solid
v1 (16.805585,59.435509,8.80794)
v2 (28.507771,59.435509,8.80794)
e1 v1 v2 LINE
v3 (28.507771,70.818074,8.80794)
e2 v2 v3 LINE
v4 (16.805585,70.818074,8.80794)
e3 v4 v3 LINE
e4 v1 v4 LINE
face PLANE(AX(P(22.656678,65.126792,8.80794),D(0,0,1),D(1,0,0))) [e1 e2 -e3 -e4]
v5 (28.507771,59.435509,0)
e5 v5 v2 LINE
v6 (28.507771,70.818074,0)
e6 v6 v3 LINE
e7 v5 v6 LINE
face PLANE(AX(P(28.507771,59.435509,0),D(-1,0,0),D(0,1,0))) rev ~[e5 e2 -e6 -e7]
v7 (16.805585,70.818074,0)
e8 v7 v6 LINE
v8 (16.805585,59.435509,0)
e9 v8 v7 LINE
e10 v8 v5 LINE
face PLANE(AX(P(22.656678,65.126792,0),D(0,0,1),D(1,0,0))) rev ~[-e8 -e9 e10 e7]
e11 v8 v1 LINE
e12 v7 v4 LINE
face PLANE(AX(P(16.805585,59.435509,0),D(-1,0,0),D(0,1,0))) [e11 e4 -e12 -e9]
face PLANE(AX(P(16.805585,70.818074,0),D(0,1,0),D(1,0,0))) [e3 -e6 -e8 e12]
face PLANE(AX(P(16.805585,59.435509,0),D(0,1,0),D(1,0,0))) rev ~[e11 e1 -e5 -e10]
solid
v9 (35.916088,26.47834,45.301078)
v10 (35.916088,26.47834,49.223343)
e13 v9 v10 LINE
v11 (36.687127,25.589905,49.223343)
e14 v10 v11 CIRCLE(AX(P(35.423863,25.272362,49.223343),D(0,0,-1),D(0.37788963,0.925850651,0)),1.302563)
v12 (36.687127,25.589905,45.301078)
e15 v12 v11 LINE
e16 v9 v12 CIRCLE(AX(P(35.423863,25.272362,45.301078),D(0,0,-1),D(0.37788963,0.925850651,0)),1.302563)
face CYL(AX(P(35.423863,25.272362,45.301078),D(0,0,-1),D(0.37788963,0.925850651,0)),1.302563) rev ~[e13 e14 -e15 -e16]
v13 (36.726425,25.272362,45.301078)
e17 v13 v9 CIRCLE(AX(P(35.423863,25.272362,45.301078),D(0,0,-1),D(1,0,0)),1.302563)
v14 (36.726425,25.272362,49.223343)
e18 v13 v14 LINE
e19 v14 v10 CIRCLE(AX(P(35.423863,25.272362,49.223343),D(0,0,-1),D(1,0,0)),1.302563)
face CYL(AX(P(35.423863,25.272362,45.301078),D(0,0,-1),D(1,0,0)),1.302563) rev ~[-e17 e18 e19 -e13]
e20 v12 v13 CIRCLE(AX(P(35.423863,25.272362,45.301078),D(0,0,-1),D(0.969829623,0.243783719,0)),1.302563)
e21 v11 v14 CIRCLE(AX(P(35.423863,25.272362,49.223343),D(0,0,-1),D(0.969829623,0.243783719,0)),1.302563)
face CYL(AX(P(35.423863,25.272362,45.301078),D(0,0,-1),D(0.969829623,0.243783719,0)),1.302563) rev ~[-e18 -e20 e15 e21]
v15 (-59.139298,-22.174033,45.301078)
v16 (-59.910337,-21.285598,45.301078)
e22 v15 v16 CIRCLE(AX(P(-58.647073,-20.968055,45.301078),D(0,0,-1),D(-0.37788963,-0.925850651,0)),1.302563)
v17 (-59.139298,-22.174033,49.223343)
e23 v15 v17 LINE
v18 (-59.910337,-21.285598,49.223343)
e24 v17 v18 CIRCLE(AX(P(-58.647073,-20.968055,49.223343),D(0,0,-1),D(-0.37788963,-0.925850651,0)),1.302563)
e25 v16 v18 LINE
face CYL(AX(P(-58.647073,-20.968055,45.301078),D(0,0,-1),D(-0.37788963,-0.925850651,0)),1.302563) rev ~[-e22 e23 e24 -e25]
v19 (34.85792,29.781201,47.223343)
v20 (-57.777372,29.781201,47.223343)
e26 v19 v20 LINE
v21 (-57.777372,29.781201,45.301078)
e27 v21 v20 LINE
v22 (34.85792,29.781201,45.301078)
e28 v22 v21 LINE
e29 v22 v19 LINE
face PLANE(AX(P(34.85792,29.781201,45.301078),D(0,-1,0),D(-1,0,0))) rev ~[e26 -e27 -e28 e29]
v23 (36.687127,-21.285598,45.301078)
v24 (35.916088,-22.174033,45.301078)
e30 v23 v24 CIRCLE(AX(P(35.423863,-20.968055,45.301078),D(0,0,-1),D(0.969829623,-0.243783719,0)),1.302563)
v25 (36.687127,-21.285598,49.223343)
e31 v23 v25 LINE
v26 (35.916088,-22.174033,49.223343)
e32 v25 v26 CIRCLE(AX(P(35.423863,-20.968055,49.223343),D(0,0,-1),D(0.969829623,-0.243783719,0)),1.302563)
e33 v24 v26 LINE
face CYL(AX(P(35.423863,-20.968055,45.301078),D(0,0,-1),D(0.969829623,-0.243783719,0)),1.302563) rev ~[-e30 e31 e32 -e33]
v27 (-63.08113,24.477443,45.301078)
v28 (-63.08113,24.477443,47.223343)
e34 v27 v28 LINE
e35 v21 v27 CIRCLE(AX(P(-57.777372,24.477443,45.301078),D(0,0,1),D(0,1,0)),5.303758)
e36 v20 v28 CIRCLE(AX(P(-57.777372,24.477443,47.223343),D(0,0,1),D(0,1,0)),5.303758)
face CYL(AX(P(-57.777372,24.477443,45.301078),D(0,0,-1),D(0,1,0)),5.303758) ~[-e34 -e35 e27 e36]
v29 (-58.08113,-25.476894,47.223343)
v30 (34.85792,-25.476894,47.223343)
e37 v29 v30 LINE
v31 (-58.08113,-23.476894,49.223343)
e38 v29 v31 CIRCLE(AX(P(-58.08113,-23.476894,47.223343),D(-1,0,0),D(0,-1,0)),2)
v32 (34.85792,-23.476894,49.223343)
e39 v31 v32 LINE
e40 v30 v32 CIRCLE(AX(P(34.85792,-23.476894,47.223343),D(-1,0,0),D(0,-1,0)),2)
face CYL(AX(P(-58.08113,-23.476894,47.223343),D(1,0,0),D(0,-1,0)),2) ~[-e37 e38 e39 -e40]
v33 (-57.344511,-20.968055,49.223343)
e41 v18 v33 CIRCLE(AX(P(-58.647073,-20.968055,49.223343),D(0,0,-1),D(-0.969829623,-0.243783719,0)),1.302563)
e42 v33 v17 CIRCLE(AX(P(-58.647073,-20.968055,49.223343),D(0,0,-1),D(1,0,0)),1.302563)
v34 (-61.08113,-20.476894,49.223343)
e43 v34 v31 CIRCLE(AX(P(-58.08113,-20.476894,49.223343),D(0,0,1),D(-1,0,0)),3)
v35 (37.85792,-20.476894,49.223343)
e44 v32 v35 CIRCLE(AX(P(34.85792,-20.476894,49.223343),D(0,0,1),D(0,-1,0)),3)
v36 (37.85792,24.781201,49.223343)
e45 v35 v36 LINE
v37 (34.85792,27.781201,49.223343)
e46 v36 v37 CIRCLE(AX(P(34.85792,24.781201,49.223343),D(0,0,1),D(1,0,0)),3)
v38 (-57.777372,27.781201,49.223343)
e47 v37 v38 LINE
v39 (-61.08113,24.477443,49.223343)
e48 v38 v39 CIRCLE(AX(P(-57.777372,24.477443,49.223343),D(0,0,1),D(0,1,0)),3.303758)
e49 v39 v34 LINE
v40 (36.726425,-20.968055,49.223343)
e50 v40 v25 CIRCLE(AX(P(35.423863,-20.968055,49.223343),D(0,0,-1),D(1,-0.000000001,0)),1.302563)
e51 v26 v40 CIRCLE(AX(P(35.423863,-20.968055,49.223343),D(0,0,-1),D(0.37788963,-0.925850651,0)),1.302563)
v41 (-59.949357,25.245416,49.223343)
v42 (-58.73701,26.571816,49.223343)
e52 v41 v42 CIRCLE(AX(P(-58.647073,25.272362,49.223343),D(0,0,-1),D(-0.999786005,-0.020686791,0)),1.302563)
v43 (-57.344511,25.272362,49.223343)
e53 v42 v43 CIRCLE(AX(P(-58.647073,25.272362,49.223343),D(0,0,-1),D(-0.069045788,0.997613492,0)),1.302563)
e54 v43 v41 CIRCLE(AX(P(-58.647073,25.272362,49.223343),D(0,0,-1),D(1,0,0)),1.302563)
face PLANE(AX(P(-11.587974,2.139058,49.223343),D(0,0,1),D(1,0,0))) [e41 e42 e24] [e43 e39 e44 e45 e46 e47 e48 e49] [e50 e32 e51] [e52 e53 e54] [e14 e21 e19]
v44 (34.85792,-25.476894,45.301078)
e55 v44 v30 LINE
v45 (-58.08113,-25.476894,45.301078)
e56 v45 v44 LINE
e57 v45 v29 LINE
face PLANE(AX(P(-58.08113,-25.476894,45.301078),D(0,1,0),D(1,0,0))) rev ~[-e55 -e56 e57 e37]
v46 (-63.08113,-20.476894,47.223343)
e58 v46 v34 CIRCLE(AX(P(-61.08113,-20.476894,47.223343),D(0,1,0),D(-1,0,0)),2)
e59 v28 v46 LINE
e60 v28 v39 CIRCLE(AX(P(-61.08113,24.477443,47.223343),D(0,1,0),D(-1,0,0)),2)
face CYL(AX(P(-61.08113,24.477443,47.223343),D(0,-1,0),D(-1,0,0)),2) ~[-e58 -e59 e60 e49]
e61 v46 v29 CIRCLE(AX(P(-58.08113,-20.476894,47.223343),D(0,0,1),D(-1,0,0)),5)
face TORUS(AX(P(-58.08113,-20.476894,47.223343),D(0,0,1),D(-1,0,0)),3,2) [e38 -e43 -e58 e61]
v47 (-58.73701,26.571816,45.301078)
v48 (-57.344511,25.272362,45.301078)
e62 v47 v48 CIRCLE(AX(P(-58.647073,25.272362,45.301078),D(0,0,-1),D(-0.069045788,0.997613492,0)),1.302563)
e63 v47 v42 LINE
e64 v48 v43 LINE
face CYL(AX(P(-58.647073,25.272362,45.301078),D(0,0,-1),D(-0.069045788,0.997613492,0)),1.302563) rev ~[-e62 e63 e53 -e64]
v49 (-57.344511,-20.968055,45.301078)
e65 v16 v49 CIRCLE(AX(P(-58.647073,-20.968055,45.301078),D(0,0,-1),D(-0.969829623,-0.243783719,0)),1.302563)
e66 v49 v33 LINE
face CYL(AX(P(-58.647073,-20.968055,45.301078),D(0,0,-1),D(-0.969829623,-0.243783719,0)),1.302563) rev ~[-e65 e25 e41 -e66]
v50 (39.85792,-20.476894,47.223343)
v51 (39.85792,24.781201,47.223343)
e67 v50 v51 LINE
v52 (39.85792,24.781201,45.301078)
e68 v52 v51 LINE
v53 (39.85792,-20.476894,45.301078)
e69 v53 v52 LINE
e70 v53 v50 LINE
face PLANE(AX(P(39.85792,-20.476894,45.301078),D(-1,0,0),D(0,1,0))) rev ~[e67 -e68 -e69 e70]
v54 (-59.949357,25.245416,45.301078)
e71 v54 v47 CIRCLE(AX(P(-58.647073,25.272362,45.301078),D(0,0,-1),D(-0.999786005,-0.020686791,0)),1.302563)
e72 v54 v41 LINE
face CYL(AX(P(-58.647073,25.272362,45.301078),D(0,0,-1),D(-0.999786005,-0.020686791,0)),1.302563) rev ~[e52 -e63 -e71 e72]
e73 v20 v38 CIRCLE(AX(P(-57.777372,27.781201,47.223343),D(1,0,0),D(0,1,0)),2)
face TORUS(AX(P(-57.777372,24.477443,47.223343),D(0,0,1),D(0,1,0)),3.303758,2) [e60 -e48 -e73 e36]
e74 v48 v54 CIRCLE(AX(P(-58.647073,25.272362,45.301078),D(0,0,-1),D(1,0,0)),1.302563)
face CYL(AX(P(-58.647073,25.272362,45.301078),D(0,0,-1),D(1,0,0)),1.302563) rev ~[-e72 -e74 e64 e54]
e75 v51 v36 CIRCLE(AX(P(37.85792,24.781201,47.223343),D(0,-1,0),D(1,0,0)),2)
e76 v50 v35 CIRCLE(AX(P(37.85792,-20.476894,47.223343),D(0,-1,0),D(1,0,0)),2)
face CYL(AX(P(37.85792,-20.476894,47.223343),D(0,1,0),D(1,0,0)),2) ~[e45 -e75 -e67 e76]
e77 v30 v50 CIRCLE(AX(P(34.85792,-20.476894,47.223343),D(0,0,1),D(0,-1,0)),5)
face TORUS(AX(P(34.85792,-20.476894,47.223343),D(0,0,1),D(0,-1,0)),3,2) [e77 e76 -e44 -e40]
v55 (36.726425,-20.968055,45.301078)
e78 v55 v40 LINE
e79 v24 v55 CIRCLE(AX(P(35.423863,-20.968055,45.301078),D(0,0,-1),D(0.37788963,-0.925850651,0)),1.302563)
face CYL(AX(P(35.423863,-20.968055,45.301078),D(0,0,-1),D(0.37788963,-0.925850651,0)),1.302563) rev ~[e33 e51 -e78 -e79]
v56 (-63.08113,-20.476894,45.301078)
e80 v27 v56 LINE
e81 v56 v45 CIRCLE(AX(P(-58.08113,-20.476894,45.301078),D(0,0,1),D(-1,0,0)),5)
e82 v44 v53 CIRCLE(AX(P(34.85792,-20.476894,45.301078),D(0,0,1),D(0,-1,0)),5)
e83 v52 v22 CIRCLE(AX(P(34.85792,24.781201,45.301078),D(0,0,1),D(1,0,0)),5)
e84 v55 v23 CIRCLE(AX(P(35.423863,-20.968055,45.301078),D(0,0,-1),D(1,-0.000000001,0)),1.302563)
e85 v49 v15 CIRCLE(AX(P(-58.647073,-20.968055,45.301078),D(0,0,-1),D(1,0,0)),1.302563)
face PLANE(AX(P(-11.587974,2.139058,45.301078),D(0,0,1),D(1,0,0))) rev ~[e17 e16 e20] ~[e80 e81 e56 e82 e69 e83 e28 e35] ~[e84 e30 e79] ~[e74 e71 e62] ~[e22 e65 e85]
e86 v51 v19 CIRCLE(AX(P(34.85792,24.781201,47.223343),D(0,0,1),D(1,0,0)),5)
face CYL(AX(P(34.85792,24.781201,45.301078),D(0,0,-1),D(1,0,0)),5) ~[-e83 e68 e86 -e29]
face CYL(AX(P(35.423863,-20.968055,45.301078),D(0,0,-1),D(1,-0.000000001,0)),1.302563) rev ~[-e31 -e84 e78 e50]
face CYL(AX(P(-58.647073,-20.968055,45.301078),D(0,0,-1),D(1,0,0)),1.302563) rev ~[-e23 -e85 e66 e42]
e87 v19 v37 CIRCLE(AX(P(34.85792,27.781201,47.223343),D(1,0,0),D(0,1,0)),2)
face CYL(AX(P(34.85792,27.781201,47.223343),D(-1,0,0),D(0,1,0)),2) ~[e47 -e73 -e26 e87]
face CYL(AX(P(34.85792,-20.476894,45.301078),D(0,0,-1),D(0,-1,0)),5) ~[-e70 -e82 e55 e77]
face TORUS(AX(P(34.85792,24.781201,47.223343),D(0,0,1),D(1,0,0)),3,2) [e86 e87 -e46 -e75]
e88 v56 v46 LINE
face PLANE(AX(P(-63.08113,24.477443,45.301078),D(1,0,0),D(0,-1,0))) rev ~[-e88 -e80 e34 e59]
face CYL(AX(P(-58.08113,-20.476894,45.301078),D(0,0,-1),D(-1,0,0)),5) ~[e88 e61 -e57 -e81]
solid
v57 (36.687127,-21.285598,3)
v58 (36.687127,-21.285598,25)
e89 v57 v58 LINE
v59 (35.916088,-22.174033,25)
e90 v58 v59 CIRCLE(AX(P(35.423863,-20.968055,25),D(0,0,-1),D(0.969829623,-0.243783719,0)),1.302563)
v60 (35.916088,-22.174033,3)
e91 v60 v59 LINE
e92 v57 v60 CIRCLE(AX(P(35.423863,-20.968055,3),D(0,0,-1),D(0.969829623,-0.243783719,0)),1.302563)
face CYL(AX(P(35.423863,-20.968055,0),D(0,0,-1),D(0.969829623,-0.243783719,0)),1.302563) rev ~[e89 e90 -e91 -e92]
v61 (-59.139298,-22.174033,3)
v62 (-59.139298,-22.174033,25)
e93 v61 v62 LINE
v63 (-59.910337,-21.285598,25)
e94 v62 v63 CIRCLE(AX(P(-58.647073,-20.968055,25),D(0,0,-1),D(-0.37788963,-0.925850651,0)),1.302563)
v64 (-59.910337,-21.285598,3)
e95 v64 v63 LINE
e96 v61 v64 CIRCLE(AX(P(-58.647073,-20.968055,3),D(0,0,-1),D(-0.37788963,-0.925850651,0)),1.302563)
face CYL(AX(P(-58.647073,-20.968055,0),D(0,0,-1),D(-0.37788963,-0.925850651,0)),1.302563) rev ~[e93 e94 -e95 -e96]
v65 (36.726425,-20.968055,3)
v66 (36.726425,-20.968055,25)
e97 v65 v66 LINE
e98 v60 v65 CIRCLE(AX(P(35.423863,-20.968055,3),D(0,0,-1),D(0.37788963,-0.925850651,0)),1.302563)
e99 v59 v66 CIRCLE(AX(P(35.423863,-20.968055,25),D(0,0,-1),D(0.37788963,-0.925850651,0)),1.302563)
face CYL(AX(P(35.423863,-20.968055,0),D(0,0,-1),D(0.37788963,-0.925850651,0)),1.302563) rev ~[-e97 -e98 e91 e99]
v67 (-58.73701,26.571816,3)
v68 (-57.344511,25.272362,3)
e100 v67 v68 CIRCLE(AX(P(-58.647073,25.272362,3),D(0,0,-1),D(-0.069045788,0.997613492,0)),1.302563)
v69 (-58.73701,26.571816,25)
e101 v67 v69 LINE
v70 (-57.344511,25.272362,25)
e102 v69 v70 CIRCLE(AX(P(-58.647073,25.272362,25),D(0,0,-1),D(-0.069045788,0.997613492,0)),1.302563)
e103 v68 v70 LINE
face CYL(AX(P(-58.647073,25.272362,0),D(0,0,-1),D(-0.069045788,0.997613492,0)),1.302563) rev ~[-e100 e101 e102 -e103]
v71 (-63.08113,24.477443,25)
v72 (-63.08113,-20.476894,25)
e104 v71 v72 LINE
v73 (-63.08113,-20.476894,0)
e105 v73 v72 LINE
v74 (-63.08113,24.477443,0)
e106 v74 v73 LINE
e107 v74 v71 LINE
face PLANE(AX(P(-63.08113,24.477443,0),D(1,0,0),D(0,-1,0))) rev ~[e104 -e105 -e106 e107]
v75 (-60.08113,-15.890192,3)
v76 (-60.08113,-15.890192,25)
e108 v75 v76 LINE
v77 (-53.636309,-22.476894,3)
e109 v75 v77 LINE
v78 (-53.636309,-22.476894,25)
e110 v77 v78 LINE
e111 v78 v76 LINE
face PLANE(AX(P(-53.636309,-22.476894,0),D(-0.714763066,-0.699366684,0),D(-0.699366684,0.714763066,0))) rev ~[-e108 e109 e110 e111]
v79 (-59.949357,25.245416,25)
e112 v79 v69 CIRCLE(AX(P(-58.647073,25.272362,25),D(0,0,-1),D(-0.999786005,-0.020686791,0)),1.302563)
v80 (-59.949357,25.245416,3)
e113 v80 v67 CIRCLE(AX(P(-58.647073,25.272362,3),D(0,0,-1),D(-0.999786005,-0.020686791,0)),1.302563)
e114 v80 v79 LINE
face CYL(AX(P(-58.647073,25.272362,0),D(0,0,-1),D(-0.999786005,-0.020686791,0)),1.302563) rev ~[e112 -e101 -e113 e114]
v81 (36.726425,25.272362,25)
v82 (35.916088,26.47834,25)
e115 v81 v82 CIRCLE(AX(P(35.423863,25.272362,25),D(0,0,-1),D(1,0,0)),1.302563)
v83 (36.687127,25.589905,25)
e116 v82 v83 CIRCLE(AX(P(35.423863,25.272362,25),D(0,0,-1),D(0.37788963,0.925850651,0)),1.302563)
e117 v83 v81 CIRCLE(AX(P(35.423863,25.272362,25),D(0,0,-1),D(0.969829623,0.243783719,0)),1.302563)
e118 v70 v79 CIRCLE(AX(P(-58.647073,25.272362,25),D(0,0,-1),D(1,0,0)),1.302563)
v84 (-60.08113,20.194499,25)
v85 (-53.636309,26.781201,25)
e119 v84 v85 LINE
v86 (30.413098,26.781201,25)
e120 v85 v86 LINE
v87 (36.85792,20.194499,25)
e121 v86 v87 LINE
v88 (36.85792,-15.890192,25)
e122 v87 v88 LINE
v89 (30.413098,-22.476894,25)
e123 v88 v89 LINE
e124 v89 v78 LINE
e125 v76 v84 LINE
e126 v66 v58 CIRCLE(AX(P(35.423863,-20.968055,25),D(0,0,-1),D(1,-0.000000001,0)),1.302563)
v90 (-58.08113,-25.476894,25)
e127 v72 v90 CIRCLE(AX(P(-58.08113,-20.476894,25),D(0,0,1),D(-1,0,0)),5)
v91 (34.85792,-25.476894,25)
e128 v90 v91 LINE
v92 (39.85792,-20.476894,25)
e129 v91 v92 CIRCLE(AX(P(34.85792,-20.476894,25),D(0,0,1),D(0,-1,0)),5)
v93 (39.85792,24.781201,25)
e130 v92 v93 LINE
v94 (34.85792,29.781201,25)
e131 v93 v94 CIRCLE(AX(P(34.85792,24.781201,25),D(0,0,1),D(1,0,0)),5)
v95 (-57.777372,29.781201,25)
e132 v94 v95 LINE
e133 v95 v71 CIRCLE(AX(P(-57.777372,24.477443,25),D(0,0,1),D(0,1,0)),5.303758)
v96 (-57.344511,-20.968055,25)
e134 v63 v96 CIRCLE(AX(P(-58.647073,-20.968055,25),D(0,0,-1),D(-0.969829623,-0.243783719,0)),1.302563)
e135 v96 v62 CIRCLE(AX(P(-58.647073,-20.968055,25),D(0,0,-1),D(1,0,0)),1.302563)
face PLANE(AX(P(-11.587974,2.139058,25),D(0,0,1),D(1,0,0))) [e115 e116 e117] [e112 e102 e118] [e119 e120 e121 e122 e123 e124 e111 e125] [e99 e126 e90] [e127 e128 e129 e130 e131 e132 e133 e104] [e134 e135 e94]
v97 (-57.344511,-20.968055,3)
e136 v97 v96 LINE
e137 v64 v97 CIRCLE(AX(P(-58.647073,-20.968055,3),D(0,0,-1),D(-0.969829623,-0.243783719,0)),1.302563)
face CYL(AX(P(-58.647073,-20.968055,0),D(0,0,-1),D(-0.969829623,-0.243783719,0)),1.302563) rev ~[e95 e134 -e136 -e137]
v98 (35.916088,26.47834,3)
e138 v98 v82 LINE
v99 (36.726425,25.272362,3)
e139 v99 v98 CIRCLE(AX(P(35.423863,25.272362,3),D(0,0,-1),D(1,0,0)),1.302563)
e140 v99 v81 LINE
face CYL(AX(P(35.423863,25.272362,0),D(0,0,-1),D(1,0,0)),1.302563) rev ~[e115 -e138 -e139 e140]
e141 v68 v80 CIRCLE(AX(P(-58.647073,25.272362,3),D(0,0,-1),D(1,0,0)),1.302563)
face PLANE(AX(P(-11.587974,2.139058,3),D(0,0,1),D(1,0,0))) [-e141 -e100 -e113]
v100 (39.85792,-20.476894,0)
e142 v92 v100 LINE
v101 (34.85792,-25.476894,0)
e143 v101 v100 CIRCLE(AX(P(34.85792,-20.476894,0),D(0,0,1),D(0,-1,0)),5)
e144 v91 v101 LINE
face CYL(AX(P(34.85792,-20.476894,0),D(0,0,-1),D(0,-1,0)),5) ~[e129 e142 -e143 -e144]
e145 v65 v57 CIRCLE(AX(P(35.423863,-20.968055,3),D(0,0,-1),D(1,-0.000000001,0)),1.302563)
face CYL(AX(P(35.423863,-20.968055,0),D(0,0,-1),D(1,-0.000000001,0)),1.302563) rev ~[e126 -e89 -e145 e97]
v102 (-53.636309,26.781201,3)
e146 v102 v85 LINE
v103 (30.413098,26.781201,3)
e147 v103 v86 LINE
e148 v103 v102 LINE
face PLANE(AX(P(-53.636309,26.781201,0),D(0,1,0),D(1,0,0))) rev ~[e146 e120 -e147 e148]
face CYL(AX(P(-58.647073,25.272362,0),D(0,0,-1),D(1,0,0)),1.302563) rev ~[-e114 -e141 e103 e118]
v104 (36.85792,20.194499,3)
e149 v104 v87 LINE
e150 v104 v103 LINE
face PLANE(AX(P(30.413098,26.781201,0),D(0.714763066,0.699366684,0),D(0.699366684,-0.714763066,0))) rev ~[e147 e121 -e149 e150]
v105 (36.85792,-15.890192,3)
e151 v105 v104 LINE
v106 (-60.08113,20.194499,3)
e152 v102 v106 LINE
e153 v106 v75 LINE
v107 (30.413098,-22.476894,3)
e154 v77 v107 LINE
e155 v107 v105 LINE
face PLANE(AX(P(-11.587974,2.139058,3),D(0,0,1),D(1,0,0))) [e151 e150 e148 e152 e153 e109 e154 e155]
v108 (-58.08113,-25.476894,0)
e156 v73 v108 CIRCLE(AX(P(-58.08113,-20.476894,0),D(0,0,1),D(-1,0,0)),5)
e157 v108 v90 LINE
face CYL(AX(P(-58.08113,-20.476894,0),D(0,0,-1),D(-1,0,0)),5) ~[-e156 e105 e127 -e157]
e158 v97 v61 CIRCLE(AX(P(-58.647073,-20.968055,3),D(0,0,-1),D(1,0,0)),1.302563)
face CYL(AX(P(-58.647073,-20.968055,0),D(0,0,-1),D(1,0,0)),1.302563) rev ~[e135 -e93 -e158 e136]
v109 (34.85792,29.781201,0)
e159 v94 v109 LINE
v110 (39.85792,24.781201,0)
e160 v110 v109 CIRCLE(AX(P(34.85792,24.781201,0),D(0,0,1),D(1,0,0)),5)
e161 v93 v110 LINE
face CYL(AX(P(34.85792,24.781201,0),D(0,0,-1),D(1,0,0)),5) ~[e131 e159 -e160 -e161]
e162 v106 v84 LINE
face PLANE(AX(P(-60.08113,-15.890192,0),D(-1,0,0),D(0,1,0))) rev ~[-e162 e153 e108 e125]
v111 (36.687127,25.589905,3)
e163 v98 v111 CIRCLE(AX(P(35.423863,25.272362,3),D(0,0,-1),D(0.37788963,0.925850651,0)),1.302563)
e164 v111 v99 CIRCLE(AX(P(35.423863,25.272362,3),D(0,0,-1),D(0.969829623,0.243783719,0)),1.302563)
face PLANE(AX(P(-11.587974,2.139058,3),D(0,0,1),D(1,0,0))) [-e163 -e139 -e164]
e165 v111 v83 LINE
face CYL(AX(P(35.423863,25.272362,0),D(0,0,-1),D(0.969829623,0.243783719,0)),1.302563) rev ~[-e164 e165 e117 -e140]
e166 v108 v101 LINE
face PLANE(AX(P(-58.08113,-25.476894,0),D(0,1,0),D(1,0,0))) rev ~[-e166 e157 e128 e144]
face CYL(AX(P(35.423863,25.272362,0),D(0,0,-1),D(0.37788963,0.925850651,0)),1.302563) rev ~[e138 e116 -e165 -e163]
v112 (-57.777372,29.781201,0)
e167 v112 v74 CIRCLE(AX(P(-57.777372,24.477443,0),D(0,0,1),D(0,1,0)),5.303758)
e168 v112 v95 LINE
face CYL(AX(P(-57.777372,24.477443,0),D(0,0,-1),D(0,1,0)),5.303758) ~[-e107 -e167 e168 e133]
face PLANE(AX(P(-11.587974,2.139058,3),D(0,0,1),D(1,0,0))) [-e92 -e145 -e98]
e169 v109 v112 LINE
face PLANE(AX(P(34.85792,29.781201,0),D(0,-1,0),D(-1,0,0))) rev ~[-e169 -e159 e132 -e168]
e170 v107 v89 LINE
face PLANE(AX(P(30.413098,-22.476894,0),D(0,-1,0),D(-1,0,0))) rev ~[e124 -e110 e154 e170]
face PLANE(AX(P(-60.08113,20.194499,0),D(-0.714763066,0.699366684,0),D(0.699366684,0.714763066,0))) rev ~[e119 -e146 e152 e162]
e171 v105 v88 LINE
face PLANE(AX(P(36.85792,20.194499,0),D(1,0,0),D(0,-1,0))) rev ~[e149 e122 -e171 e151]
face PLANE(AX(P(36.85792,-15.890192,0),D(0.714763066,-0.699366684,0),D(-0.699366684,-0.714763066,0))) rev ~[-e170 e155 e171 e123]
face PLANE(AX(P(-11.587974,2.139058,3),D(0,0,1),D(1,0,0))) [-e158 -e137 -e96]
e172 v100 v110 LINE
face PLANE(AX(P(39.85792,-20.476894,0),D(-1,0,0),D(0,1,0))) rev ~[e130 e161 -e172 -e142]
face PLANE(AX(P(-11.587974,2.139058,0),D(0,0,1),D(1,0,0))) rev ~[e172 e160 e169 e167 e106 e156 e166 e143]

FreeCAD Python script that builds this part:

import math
import FreeCAD as App
import Part
import Sketcher

V = App.Vector
Q = App.Units.Quantity


def edges_at(feature, points):
    """Names of the edges that pass closest to the given points."""
    edges = feature.Shape.Edges
    near = lambda p: min(range(len(edges)), key=lambda i: edges[i].distToShape(Part.Vertex(*p))[0])
    return sorted({f"Edge{near(p) + 1}" for p in points})

doc = App.newDocument("Part")
body = doc.addObject("PartDesign::Body", "Body")

# Sketch on XY plane
sketch1 = body.newObject("Sketcher::SketchObject", "Sketch")
sketch1.AttachmentSupport = (doc.getObject("XY_Plane"), [""])
sketch1.MapMode = "FlatFace"
sketch1.addGeometry([
    Part.LineSegment(V(17, 71, 0), V(17, 59, 0)),
    Part.LineSegment(V(17, 59, 0), V(29, 59, 0)),
    Part.LineSegment(V(29, 59, 0), V(29, 71, 0)),
    Part.LineSegment(V(29, 71, 0), V(17, 71, 0)),
], False)
sketch1.addConstraint([
    Sketcher.Constraint("Coincident", 0, 2, 1, 1),
    Sketcher.Constraint("Coincident", 1, 2, 2, 1),
    Sketcher.Constraint("Coincident", 2, 2, 3, 1),
    Sketcher.Constraint("Coincident", 3, 2, 0, 1),
    Sketcher.Constraint("Vertical", 0),
    Sketcher.Constraint("Horizontal", 1),
    Sketcher.Constraint("Vertical", 2),
    Sketcher.Constraint("Horizontal", 3),
    Sketcher.Constraint("DistanceX", 1, 1, 1, 2, Q("11.702185 mm")),
    Sketcher.Constraint("DistanceY", 0, 2, 0, 1, Q("11.382565 mm")),
    Sketcher.Constraint("DistanceY", -1, 1, 0, 2, Q("59.435509 mm")),
    Sketcher.Constraint("DistanceX", -1, 1, 1, 2, Q("28.507771 mm")),
])
pad1 = body.newObject("PartDesign::Pad", "Pad")
pad1.Profile = sketch1
pad1.Length = 8.80794
body2 = doc.addObject("PartDesign::Body", "Body001")

# Sketch on XY plane
sketch2 = body2.newObject("Sketcher::SketchObject", "Sketch001")
sketch2.AttachmentSupport = (doc.getObject("XY_Plane001"), [""])
sketch2.MapMode = "FlatFace"
sketch2.addGeometry([
    Part.LineSegment(V(35, 30, 0), V(-58, 30, 0)),  # 0
    Part.ArcOfCircle(Part.Circle(V(-58, 24, 0), V(0, 0, 1), 5), math.radians(90), math.radians(180)),  # 1
    Part.LineSegment(V(-63, 24, 0), V(-63, -20, 0)),  # 2
    Part.ArcOfCircle(Part.Circle(V(-58, -20, 0), V(0, 0, 1), 5), math.radians(180), math.radians(270)),  # 3
    Part.LineSegment(V(-58, -25, 0), V(35, -25, 0)),  # 4
    Part.ArcOfCircle(Part.Circle(V(35, -20, 0), V(0, 0, 1), 5), math.radians(-90), math.radians(0)),  # 5
    Part.LineSegment(V(40, -20, 0), V(40, 25, 0)),  # 6
    Part.ArcOfCircle(Part.Circle(V(35, 25, 0), V(0, 0, 1), 5), math.radians(0), math.radians(90)),  # 7
], False)
sketch2.addConstraint([
    Sketcher.Constraint("Tangent", 0, 2, 1, 1),
    Sketcher.Constraint("Tangent", 1, 2, 2, 1),
    Sketcher.Constraint("Tangent", 2, 2, 3, 1),
    Sketcher.Constraint("Tangent", 3, 2, 4, 1),
    Sketcher.Constraint("Tangent", 4, 2, 5, 1),
    Sketcher.Constraint("Tangent", 5, 2, 6, 1),
    Sketcher.Constraint("Tangent", 6, 2, 7, 1),
    Sketcher.Constraint("Tangent", 7, 2, 0, 1),
    Sketcher.Constraint("Horizontal", 0),
    Sketcher.Constraint("Vertical", 2),
    Sketcher.Constraint("Horizontal", 4),
    Sketcher.Constraint("Vertical", 6),
    Sketcher.Constraint("Equal", 3, 5),
    Sketcher.Constraint("Equal", 5, 7),
    Sketcher.Constraint("Radius", 3, Q("5 mm")),
    Sketcher.Constraint("Radius", 1, Q("5.303758 mm")),
    Sketcher.Constraint("DistanceX", 0, 2, 0, 1, Q("92.635291 mm")),
    Sketcher.Constraint("DistanceY", -1, 1, 7, 3, Q("24.781201 mm")),
    Sketcher.Constraint("DistanceY", 2, 2, 2, 1, Q("44.954337 mm")),
    Sketcher.Constraint("DistanceX", 1, 3, -1, 1, Q("57.777372 mm")),
])
pad2 = body2.newObject("PartDesign::Pad", "Pad001")
pad2.Profile = sketch2
pad2.Length = 3

# Sketch on XY plane
sketch3 = body2.newObject("Sketcher::SketchObject", "Sketch002")
sketch3.AttachmentSupport = (doc.getObject("XY_Plane001"), [""])
sketch3.MapMode = "FlatFace"
sketch3.addGeometry([
    Part.LineSegment(V(34.86, 29.78, 0), V(-57.78, 29.78, 0)),  # 0
    Part.ArcOfCircle(Part.Circle(V(-57.78, 24.48, 0), V(0, 0, 1), 5.3), math.radians(90), math.radians(180)),  # 1
    Part.LineSegment(V(-63.08, 24.48, 0), V(-63.08, -20.48, 0)),  # 2
    Part.ArcOfCircle(Part.Circle(V(-58.08, -20.48, 0), V(0, 0, 1), 5), math.radians(180), math.radians(270)),  # 3
    Part.LineSegment(V(-58.08, -25.48, 0), V(34.86, -25.48, 0)),  # 4
    Part.ArcOfCircle(Part.Circle(V(34.86, -20.48, 0), V(0, 0, 1), 5), math.radians(-90), math.radians(0)),  # 5
    Part.LineSegment(V(39.86, -20.48, 0), V(39.86, 24.78, 0)),  # 6
    Part.ArcOfCircle(Part.Circle(V(34.86, 24.78, 0), V(0, 0, 1), 5), math.radians(0), math.radians(90)),  # 7
    Part.ArcOfCircle(Part.Circle(V(-58.65, 25.27, 0), V(0, 0, 1), 1.3), math.radians(94), math.radians(181)),  # 8
    Part.ArcOfCircle(Part.Circle(V(-58.65, 25.27, 0), V(0, 0, 1), 1.3), math.radians(0), math.radians(94)),  # 9
    Part.ArcOfCircle(Part.Circle(V(-58.65, 25.27, 0), V(0, 0, 1), 1.3), math.radians(-179), math.radians(0)),  # 10
    Part.LineSegment(V(-53.64, 26.78, 0), V(30.41, 26.78, 0)),  # 11
    Part.LineSegment(V(30.41, 26.78, 0), V(36.86, 20.19, 0)),  # 12
    Part.LineSegment(V(36.86, 20.19, 0), V(36.86, -15.89, 0)),  # 13
    Part.LineSegment(V(36.86, -15.89, 0), V(30.41, -22.48, 0)),  # 14
    Part.LineSegment(V(30.41, -22.48, 0), V(-53.64, -22.48, 0)),  # 15
    Part.LineSegment(V(-53.64, -22.48, 0), V(-60.08, -15.89, 0)),  # 16
    Part.LineSegment(V(-60.08, -15.89, 0), V(-60.08, 20.19, 0)),  # 17
    Part.LineSegment(V(-60.08, 20.19, 0), V(-53.64, 26.78, 0)),  # 18
    Part.ArcOfCircle(Part.Circle(V(-58.65, -20.97, 0), V(0, 0, 1), 1.3), math.radians(-166), math.radians(-112)),  # 19
    Part.ArcOfCircle(Part.Circle(V(-58.65, -20.97, 0), V(0, 0, 1), 1.3), math.radians(0), math.radians(194)),  # 20
    Part.ArcOfCircle(Part.Circle(V(-58.65, -20.97, 0), V(0, 0, 1), 1.3), math.radians(-112), math.radians(0)),  # 21
    Part.ArcOfCircle(Part.Circle(V(35.42, 25.27, 0), V(0, 0, 1), 1.3), math.radians(14), math.radians(68)),  # 22
    Part.ArcOfCircle(Part.Circle(V(35.42, 25.27, 0), V(0, 0, 1), 1.3), math.radians(0), math.radians(14.11)),  # 23
    Part.ArcOfCircle(Part.Circle(V(35.42, 25.27, 0), V(0, 0, 1), 1.3), math.radians(68), math.radians(360)),  # 24
    Part.ArcOfCircle(Part.Circle(V(35.42, -20.97, 0), V(0, 0, 1), 1.3), math.radians(-68), math.radians(-14)),  # 25
    Part.ArcOfCircle(Part.Circle(V(35.42, -20.97, 0), V(0, 0, 1), 1.3), math.radians(0), math.radians(292)),  # 26
    Part.ArcOfCircle(Part.Circle(V(35.42, -20.97, 0), V(0, 0, 1), 1.3), math.radians(-14.11), math.radians(0)),  # 27
], False)
sketch3.addConstraint([
    Sketcher.Constraint("Tangent", 0, 2, 1, 1),
    Sketcher.Constraint("Tangent", 1, 2, 2, 1),
    Sketcher.Constraint("Tangent", 2, 2, 3, 1),
    Sketcher.Constraint("Tangent", 3, 2, 4, 1),
    Sketcher.Constraint("Tangent", 4, 2, 5, 1),
    Sketcher.Constraint("Tangent", 5, 2, 6, 1),
    Sketcher.Constraint("Tangent", 6, 2, 7, 1),
    Sketcher.Constraint("Tangent", 7, 2, 0, 1),
    Sketcher.Constraint("Tangent", 8, 1, 9, 2),
    Sketcher.Constraint("Tangent", 9, 1, 10, 2),
    Sketcher.Constraint("Tangent", 10, 1, 8, 2),
    Sketcher.Constraint("Coincident", 11, 2, 12, 1),
    Sketcher.Constraint("Coincident", 12, 2, 13, 1),
    Sketcher.Constraint("Coincident", 13, 2, 14, 1),
    Sketcher.Constraint("Coincident", 14, 2, 15, 1),
    Sketcher.Constraint("Coincident", 15, 2, 16, 1),
    Sketcher.Constraint("Coincident", 16, 2, 17, 1),
    Sketcher.Constraint("Coincident", 17, 2, 18, 1),
    Sketcher.Constraint("Coincident", 18, 2, 11, 1),
    Sketcher.Constraint("Tangent", 19, 1, 20, 2),
    Sketcher.Constraint("Tangent", 20, 1, 21, 2),
    Sketcher.Constraint("Tangent", 21, 1, 19, 2),
    Sketcher.Constraint("Tangent", 22, 1, 23, 2),
    Sketcher.Constraint("Tangent", 23, 1, 24, 2),
    Sketcher.Constraint("Tangent", 24, 1, 22, 2),
    Sketcher.Constraint("Tangent", 25, 1, 26, 2),
    Sketcher.Constraint("Tangent", 26, 1, 27, 2),
    Sketcher.Constraint("Tangent", 27, 1, 25, 2),
    Sketcher.Constraint("Horizontal", 0),
    Sketcher.Constraint("Vertical", 2),
    Sketcher.Constraint("Horizontal", 4),
    Sketcher.Constraint("Vertical", 6),
    Sketcher.Constraint("Horizontal", 11),
    Sketcher.Constraint("Vertical", 13),
    Sketcher.Constraint("Horizontal", 15),
    Sketcher.Constraint("Vertical", 17),
    Sketcher.Constraint("Equal", 3, 5),
    Sketcher.Constraint("Equal", 5, 7),
    Sketcher.Constraint("Equal", 10, 19),
    Sketcher.Constraint("Equal", 21, 22),
    Sketcher.Constraint("Equal", 24, 25),
    Sketcher.Constraint("Parallel", 12, 16),
    Sketcher.Constraint("Parallel", 14, 18),
    Sketcher.Constraint("Horizontal", 10, 3, 22, 3),
    Sketcher.Constraint("Horizontal", 21, 3, 25, 3),
    Sketcher.Constraint("Horizontal", 24, 3, 9, 1),
    Sketcher.Constraint("Horizontal", 13, 2, 16, 2),
    Sketcher.Constraint("Horizontal", 12, 2, 17, 2),
    Sketcher.Constraint("Horizontal", 27, 3, 20, 1),
    Sketcher.Constraint("Horizontal", 9, 1, 23, 1),
    Sketcher.Constraint("Horizontal", 21, 1, 25, 1),
    Sketcher.Constraint("Horizontal", 20, 1, 26, 1),
    Sketcher.Constraint("Horizontal", 19, 1, 27, 1),
    Sketcher.Constraint("Vertical", 10, 3, 19, 3),
    Sketcher.Constraint("Vertical", 24, 3, 25, 3),
    Sketcher.Constraint("Vertical", 11, 2, 14, 2),
    Sketcher.Constraint("Vertical", 15, 2, 18, 2),
    Sketcher.Constraint("Vertical", 24, 1, 25, 1),
    Sketcher.Constraint("Vertical", 22, 1, 27, 1),
    Sketcher.Constraint("Radius", 3, Q("5 mm")),
    Sketcher.Constraint("DistanceY", 7, 3, 11, 2, Q("2 mm")),
    Sketcher.Constraint("DistanceX", 7, 3, 12, 2, Q("2 mm")),
    Sketcher.Constraint("DistanceY", 14, 2, 5, 3, Q("2 mm")),
    Sketcher.Constraint("DistanceX", 16, 2, 3, 3, Q("2 mm")),
    Sketcher.Constraint("Radius", 1, Q("5.303758 mm")),
    Sketcher.Constraint("Radius", 8, Q("1.302563 mm")),
    Sketcher.Constraint("DistanceX", 0, 2, 0, 1, Q("92.635291 mm")),
    Sketcher.Constraint("DistanceY", 13, 2, 13, 1, Q("36.08469 mm")),
    Sketcher.Constraint("DistanceY", -1, 1, 7, 3, Q("24.781201 mm")),
    Sketcher.Constraint("DistanceX", -1, 1, 11, 2, Q("30.413098 mm")),
    Sketcher.Constraint("DistanceY", -1, 1, 12, 2, Q("20.194499 mm")),
    Sketcher.Constraint("DistanceY", 19, 1, -1, 1, Q("21.285598 mm")),
    Sketcher.Constraint("DistanceX", 8, 3, 1, 3, Q("0.869701 mm")),
    Sketcher.Constraint("DistanceX", 8, 1, 9, 1, Q("1.392499 mm")),
    Sketcher.Constraint("DistanceY", 10, 1, 8, 1, Q("1.3264 mm")),
    Sketcher.Constraint("DistanceX", 9, 1, 18, 2, Q("3.708202 mm")),
    Sketcher.Constraint("DistanceX", 22, 1, 23, 1, Q("0.039299 mm")),
    Sketcher.Constraint("DistanceY", -1, 1, 8, 3, Q("25.272362 mm")),
    Sketcher.Constraint("DistanceY", -1, 1, 24, 1, Q("26.47834 mm")),
    Sketcher.Constraint("DistanceX", -1, 1, 22, 3, Q("35.423863 mm")),
])
pad3 = body2.newObject("PartDesign::Pad", "Pad002")
pad3.Profile = sketch3
pad3.Length = 25
body3 = doc.addObject("PartDesign::Body", "Body002")

# Sketch on XY plane
sketch4 = body3.newObject("Sketcher::SketchObject", "Sketch003")
sketch4.AttachmentSupport = (doc.getObject("XY_Plane002"), [""])
sketch4.MapMode = "FlatFace"
sketch4.AttachmentOffset = App.Placement(V(0, 0, 45.301078), App.Rotation())
sketch4.addGeometry([
    Part.LineSegment(V(34.86, 29.78, 0), V(-57.78, 29.78, 0)),  # 0
    Part.ArcOfCircle(Part.Circle(V(-57.78, 24.48, 0), V(0, 0, 1), 5.3), math.radians(90), math.radians(180)),  # 1
    Part.LineSegment(V(-63.08, 24.48, 0), V(-63.08, -20.48, 0)),  # 2
    Part.ArcOfCircle(Part.Circle(V(-58.08, -20.48, 0), V(0, 0, 1), 5), math.radians(180), math.radians(270)),  # 3
    Part.LineSegment(V(-58.08, -25.48, 0), V(34.86, -25.48, 0)),  # 4
    Part.ArcOfCircle(Part.Circle(V(34.86, -20.48, 0), V(0, 0, 1), 5), math.radians(-90), math.radians(0)),  # 5
    Part.LineSegment(V(39.86, -20.48, 0), V(39.86, 24.78, 0)),  # 6
    Part.ArcOfCircle(Part.Circle(V(34.86, 24.78, 0), V(0, 0, 1), 5), math.radians(0), math.radians(90)),  # 7
    Part.ArcOfCircle(Part.Circle(V(-58.65, 25.27, 0), V(0, 0, 1), 1.3), math.radians(94), math.radians(181)),  # 8
    Part.ArcOfCircle(Part.Circle(V(-58.65, 25.27, 0), V(0, 0, 1), 1.3), math.radians(0), math.radians(94)),  # 9
    Part.ArcOfCircle(Part.Circle(V(-58.65, 25.27, 0), V(0, 0, 1), 1.3), math.radians(-179), math.radians(0)),  # 10
    Part.ArcOfCircle(Part.Circle(V(-58.65, -20.97, 0), V(0, 0, 1), 1.3), math.radians(-166), math.radians(-112)),  # 11
    Part.ArcOfCircle(Part.Circle(V(-58.65, -20.97, 0), V(0, 0, 1), 1.3), math.radians(0), math.radians(194)),  # 12
    Part.ArcOfCircle(Part.Circle(V(-58.65, -20.97, 0), V(0, 0, 1), 1.3), math.radians(-112), math.radians(0)),  # 13
    Part.ArcOfCircle(Part.Circle(V(35.42, -20.97, 0), V(0, 0, 1), 1.3), math.radians(-68), math.radians(-14)),  # 14
    Part.ArcOfCircle(Part.Circle(V(35.42, -20.97, 0), V(0, 0, 1), 1.3), math.radians(0), math.radians(292)),  # 15
    Part.ArcOfCircle(Part.Circle(V(35.42, -20.97, 0), V(0, 0, 1), 1.3), math.radians(-14.11), math.radians(0)),  # 16
    Part.ArcOfCircle(Part.Circle(V(35.42, 25.27, 0), V(0, 0, 1), 1.3), math.radians(14), math.radians(68)),  # 17
    Part.ArcOfCircle(Part.Circle(V(35.42, 25.27, 0), V(0, 0, 1), 1.3), math.radians(0), math.radians(14.11)),  # 18
    Part.ArcOfCircle(Part.Circle(V(35.42, 25.27, 0), V(0, 0, 1), 1.3), math.radians(68), math.radians(360)),  # 19
], False)
sketch4.addConstraint([
    Sketcher.Constraint("Tangent", 0, 2, 1, 1),
    Sketcher.Constraint("Tangent", 1, 2, 2, 1),
    Sketcher.Constraint("Tangent", 2, 2, 3, 1),
    Sketcher.Constraint("Tangent", 3, 2, 4, 1),
    Sketcher.Constraint("Tangent", 4, 2, 5, 1),
    Sketcher.Constraint("Tangent", 5, 2, 6, 1),
    Sketcher.Constraint("Tangent", 6, 2, 7, 1),
    Sketcher.Constraint("Tangent", 7, 2, 0, 1),
    Sketcher.Constraint("Tangent", 8, 1, 9, 2),
    Sketcher.Constraint("Tangent", 9, 1, 10, 2),
    Sketcher.Constraint("Tangent", 10, 1, 8, 2),
    Sketcher.Constraint("Tangent", 11, 1, 12, 2),
    Sketcher.Constraint("Tangent", 12, 1, 13, 2),
    Sketcher.Constraint("Tangent", 13, 1, 11, 2),
    Sketcher.Constraint("Tangent", 14, 1, 15, 2),
    Sketcher.Constraint("Tangent", 15, 1, 16, 2),
    Sketcher.Constraint("Tangent", 16, 1, 14, 2),
    Sketcher.Constraint("Tangent", 17, 1, 18, 2),
    Sketcher.Constraint("Tangent", 18, 1, 19, 2),
    Sketcher.Constraint("Tangent", 19, 1, 17, 2),
    Sketcher.Constraint("Horizontal", 0),
    Sketcher.Constraint("Vertical", 2),
    Sketcher.Constraint("Horizontal", 4),
    Sketcher.Constraint("Vertical", 6),
    Sketcher.Constraint("Equal", 3, 5),
    Sketcher.Constraint("Equal", 5, 7),
    Sketcher.Constraint("Equal", 10, 11),
    Sketcher.Constraint("Equal", 13, 14),
    Sketcher.Constraint("Equal", 16, 17),
    Sketcher.Constraint("Horizontal", 13, 3, 14, 3),
    Sketcher.Constraint("Horizontal", 10, 3, 17, 3),
    Sketcher.Constraint("Horizontal", 19, 3, 9, 1),
    Sketcher.Constraint("Horizontal", 16, 3, 12, 1),
    Sketcher.Constraint("Horizontal", 13, 1, 14, 1),
    Sketcher.Constraint("Horizontal", 12, 1, 15, 1),
    Sketcher.Constraint("Horizontal", 11, 1, 16, 1),
    Sketcher.Constraint("Horizontal", 9, 1, 18, 1),
    Sketcher.Constraint("Vertical", 10, 3, 11, 3),
    Sketcher.Constraint("Vertical", 16, 3, 17, 3),
    Sketcher.Constraint("Vertical", 16, 1, 17, 1),
    Sketcher.Constraint("Vertical", 14, 1, 19, 1),
    Sketcher.Constraint("Radius", 3, Q("5 mm")),
    Sketcher.Constraint("Radius", 1, Q("5.303758 mm")),
    Sketcher.Constraint("Radius", 8, Q("1.302563 mm")),
    Sketcher.Constraint("DistanceX", 0, 2, 0, 1, Q("92.635291 mm")),
    Sketcher.Constraint("DistanceY", -1, 1, 7, 3, Q("24.781201 mm")),
    Sketcher.Constraint("DistanceY", 11, 1, -1, 1, Q("21.285598 mm")),
    Sketcher.Constraint("DistanceX", 8, 3, 1, 3, Q("0.869701 mm")),
    Sketcher.Constraint("DistanceX", 8, 1, 9, 1, Q("1.392499 mm")),
    Sketcher.Constraint("DistanceY", 10, 1, 8, 1, Q("1.3264 mm")),
    Sketcher.Constraint("DistanceX", 16, 1, 15, 1, Q("0.039299 mm")),
    Sketcher.Constraint("DistanceY", 2, 2, 2, 1, Q("44.954337 mm")),
    Sketcher.Constraint("DistanceX", 1, 3, -1, 1, Q("57.777372 mm")),
    Sketcher.Constraint("DistanceY", -1, 1, 8, 3, Q("25.272362 mm")),
    Sketcher.Constraint("DistanceY", -1, 1, 19, 1, Q("26.47834 mm")),
    Sketcher.Constraint("DistanceX", -1, 1, 14, 3, Q("35.423863 mm")),
])
pad4 = body3.newObject("PartDesign::Pad", "Pad003")
pad4.Profile = sketch4
pad4.Length = 3.922265
doc.recompute()

fillet = body3.newObject("PartDesign::Fillet", "Fillet")
fillet.Base = (pad4, edges_at(pad4, [(-11.46, 29.781, 49.223), (-63.081, 2, 49.223)]))
fillet.Radius = 2

doc.recompute()
